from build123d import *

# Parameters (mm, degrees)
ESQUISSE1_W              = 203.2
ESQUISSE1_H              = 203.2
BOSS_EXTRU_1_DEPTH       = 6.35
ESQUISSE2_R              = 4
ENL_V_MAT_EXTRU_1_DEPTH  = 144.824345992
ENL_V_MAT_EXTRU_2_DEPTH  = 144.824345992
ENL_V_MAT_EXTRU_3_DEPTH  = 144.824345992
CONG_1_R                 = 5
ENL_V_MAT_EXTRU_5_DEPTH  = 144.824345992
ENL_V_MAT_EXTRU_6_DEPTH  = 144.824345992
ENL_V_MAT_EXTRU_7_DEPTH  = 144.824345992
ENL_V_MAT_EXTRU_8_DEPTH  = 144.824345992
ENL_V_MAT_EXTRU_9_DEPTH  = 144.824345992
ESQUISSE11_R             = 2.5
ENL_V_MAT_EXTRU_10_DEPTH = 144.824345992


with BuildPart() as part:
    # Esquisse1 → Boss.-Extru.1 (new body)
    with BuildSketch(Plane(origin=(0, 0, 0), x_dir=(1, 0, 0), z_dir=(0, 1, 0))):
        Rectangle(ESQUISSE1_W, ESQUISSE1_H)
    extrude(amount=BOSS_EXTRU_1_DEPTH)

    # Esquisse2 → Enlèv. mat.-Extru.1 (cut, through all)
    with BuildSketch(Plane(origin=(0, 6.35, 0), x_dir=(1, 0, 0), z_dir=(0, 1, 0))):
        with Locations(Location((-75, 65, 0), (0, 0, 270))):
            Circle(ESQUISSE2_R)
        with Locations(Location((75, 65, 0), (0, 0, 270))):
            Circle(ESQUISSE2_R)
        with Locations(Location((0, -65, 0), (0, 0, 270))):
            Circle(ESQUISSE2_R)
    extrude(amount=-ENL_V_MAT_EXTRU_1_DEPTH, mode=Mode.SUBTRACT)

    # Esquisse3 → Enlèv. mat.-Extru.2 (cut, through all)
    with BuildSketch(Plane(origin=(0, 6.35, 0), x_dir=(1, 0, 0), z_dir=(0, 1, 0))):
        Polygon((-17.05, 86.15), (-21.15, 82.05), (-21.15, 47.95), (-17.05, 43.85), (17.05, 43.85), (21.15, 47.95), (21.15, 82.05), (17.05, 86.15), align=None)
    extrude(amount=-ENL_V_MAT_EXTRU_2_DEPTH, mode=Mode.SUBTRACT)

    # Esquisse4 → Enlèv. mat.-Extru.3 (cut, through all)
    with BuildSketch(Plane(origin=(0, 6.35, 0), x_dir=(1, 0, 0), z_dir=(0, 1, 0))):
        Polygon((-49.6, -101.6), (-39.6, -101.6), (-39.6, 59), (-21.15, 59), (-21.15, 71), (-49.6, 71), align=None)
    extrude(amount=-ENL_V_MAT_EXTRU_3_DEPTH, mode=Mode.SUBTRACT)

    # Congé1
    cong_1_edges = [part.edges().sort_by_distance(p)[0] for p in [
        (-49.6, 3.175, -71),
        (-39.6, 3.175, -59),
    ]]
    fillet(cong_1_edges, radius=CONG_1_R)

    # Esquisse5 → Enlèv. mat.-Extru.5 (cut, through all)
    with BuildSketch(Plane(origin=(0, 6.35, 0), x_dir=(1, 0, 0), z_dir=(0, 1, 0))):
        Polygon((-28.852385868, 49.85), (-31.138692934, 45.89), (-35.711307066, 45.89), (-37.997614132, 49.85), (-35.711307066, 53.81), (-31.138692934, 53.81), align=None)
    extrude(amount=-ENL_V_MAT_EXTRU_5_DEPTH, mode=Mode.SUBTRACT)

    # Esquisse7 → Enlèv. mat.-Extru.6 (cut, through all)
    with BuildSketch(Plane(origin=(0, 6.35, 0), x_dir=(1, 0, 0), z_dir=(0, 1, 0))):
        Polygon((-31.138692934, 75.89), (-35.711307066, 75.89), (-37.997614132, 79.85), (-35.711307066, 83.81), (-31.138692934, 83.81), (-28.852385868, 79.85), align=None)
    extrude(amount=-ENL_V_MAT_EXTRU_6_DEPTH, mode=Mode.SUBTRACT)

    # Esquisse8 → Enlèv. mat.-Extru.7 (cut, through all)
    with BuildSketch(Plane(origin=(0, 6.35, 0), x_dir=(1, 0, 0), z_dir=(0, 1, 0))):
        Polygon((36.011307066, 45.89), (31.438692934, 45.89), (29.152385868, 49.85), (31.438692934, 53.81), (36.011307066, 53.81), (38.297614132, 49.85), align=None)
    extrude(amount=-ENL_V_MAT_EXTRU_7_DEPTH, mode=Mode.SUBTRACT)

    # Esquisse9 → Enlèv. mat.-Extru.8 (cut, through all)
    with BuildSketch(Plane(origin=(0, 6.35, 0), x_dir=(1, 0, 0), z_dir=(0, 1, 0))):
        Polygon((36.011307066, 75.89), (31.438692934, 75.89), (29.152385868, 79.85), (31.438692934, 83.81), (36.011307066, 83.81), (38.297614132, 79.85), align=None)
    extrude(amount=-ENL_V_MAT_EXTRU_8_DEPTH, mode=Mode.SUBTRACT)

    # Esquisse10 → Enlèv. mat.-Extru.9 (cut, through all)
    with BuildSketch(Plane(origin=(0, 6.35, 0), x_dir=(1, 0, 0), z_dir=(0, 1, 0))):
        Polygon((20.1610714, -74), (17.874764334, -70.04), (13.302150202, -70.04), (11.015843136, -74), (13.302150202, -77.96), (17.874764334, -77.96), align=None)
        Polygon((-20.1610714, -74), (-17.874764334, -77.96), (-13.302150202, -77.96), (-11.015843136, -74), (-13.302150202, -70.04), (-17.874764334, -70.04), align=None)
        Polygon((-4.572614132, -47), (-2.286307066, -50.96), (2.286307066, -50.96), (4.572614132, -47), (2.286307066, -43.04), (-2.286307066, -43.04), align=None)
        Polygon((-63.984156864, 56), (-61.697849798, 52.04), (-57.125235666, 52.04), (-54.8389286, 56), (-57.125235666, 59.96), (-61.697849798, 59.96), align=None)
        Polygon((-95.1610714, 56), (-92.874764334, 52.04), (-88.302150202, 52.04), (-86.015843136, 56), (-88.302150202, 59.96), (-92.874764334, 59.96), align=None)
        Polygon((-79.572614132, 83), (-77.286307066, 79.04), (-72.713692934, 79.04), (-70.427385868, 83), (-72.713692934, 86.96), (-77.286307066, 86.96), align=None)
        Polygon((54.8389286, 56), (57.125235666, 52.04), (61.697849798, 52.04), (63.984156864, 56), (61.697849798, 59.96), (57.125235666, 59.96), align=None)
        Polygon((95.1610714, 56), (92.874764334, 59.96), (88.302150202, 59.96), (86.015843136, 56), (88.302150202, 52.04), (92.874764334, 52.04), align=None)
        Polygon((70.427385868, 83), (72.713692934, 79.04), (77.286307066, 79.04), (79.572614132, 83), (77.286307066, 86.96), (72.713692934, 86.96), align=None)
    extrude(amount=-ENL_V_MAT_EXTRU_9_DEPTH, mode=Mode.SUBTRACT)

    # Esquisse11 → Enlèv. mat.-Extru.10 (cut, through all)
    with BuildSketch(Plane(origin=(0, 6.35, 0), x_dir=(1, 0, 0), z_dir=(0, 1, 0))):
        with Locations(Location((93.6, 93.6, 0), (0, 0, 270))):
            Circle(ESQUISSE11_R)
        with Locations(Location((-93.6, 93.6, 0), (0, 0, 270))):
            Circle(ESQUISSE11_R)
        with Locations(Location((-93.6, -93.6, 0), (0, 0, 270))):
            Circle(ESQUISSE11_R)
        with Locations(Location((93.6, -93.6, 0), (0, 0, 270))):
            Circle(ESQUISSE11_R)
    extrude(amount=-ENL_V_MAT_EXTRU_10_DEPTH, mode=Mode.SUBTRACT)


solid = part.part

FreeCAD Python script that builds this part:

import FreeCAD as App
import Part
import Sketcher

V = App.Vector
Q = App.Units.Quantity


def edges_at(feature, points):
    """Names of the edges that pass closest to the given points."""
    edges = feature.Shape.Edges
    near = lambda p: min(range(len(edges)), key=lambda i: edges[i].distToShape(Part.Vertex(*p))[0])
    return sorted({f"Edge{near(p) + 1}" for p in points})


def add_polygon(sketch, points):
    """Adds a closed chain of lines whose ends are joined by coincident constraints."""
    first, n = sketch.GeometryCount, len(points)
    for a, b in zip(points, points[1:] + points[:1]):
        sketch.addGeometry(Part.LineSegment(App.Vector(*a, 0), App.Vector(*b, 0)), False)
    for i in range(n):
        sketch.addConstraint(Sketcher.Constraint("Coincident", first + i, 2, first + (i + 1) % n, 1))

doc = App.newDocument("Part")
body = doc.addObject("PartDesign::Body", "Body")

sketch1 = body.newObject("Sketcher::SketchObject", "Sketch")
sketch1.AttachmentSupport = (doc.getObject("XZ_Plane"), [""])
sketch1.MapMode = "FlatFace"
add_polygon(sketch1, [(-102, -102), (-102, 102), (102, 102), (102, -102)])
sketch1.addConstraint(Sketcher.Constraint("Vertical", 0))
sketch1.addConstraint(Sketcher.Constraint("Horizontal", 1))
sketch1.addConstraint(Sketcher.Constraint("Vertical", 2))
sketch1.addConstraint(Sketcher.Constraint("Horizontal", 3))
sketch1.addConstraint(Sketcher.Constraint("Symmetric", 0, 2, 2, 2, -1, 1))
sketch1.addConstraint(Sketcher.Constraint("Equal", 3, 0))
sketch1.addConstraint(Sketcher.Constraint("DistanceX", 1, 1, 1, 2, Q("203.2 mm")))
pad1 = body.newObject("PartDesign::Pad", "Pad")
pad1.Profile = sketch1
pad1.Length = 6.35
pad1.Reversed = True

sketch2 = body.newObject("Sketcher::SketchObject", "Sketch001")
sketch2.AttachmentSupport = (doc.getObject("XZ_Plane"), [""])
sketch2.MapMode = "FlatFace"
sketch2.AttachmentOffset = App.Placement(V(0, 0, -6.35), App.Rotation())
sketch2.addGeometry(Part.Circle(V(-75, -65, 0), V(0, 0, 1), 4), False)
sketch2.addGeometry(Part.Circle(V(75, -65, 0), V(0, 0, 1), 4), False)
sketch2.addGeometry(Part.Circle(V(0, 65, 0), V(0, 0, 1), 4), False)
sketch2.addConstraint(Sketcher.Constraint("Equal", 0, 1))
sketch2.addConstraint(Sketcher.Constraint("Equal", 1, 2))
sketch2.addConstraint(Sketcher.Constraint("Symmetric", 0, 3, 1, 3, -2))
sketch2.addConstraint(Sketcher.Constraint("PointOnObject", 2, 3, -2))
sketch2.addConstraint(Sketcher.Constraint("Diameter", 0, Q("8 mm")))
sketch2.addConstraint(Sketcher.Constraint("DistanceX", 0, 3, -1, 1, Q("75 mm")))
sketch2.addConstraint(Sketcher.Constraint("DistanceY", 0, 3, -1, 1, Q("65 mm")))
sketch2.addConstraint(Sketcher.Constraint("DistanceY", -1, 1, 2, 3, Q("65 mm")))
pocket1 = body.newObject("PartDesign::Pocket", "Pocket")
pocket1.Profile = sketch2
pocket1.Type = "ThroughAll"
pocket1.Reversed = True

sketch3 = body.newObject("Sketcher::SketchObject", "Sketch002")
sketch3.AttachmentSupport = (doc.getObject("XZ_Plane"), [""])
sketch3.MapMode = "FlatFace"
sketch3.AttachmentOffset = App.Placement(V(0, 0, -6.35), App.Rotation())
add_polygon(sketch3, [(-17, -86), (-21, -82), (-21, -48), (-17, -44), (17, -44), (21, -48), (21, -82), (17, -86)])
sketch3.addConstraint(Sketcher.Constraint("Vertical", 1))
sketch3.addConstraint(Sketcher.Constraint("Horizontal", 3))
sketch3.addConstraint(Sketcher.Constraint("Vertical", 5))
sketch3.addConstraint(Sketcher.Constraint("Horizontal", 7))
sketch3.addConstraint(Sketcher.Constraint("Symmetric", 1, 2, 4, 2, -2))
sketch3.addConstraint(Sketcher.Constraint("Perpendicular", 0, 2))
sketch3.addConstraint(Sketcher.Constraint("Perpendicular", 2, 4))
sketch3.addConstraint(Sketcher.Constraint("Perpendicular", 4, 6))
sketch3.addConstraint(Sketcher.Constraint("Horizontal", 0, 2, 5, 2))
sketch3.addConstraint(Sketcher.Constraint("Vertical", 3, 2, 6, 2))
sketch3.addConstraint(Sketcher.Constraint("Vertical", 2, 2, 7, 2))
sketch3.addConstraint(Sketcher.Constraint("Equal", 7, 1))
sketch3.addConstraint(Sketcher.Constraint("DistanceX", 3, 1, 3, 2, Q("34.1 mm")))
sketch3.addConstraint(Sketcher.Constraint("DistanceX", 1, 2, 2, 2, Q("4.1 mm")))
sketch3.addConstraint(Sketcher.Constraint("DistanceY", 0, 2, -1, 1, Q("82.05 mm")))
pocket2 = body.newObject("PartDesign::Pocket", "Pocket001")
pocket2.Profile = sketch3
pocket2.Type = "ThroughAll"
pocket2.Reversed = True

sketch4 = body.newObject("Sketcher::SketchObject", "Sketch003")
sketch4.AttachmentSupport = (doc.getObject("XZ_Plane"), [""])
sketch4.MapMode = "FlatFace"
sketch4.AttachmentOffset = App.Placement(V(0, 0, -6.35), App.Rotation())
add_polygon(sketch4, [(-50, 102), (-40, 102), (-40, -59), (-21, -59), (-21, -71), (-50, -71)])
sketch4.addConstraint(Sketcher.Constraint("Horizontal", 0))
sketch4.addConstraint(Sketcher.Constraint("Vertical", 1))
sketch4.addConstraint(Sketcher.Constraint("Horizontal", 2))
sketch4.addConstraint(Sketcher.Constraint("Vertical", 3))
sketch4.addConstraint(Sketcher.Constraint("Horizontal", 4))
sketch4.addConstraint(Sketcher.Constraint("Vertical", 5))
sketch4.addConstraint(Sketcher.Constraint("DistanceX", 0, 1, 0, 2, Q("10 mm")))
sketch4.addConstraint(Sketcher.Constraint("DistanceY", 3, 2, 3, 1, Q("12 mm")))
sketch4.addConstraint(Sketcher.Constraint("DistanceY", 1, 2, 1, 1, Q("160.6 mm")))
sketch4.addConstraint(Sketcher.Constraint("DistanceY", 1, 2, -1, 1, Q("59 mm")))
sketch4.addConstraint(Sketcher.Constraint("DistanceX", 2, 1, 2, 2, Q("18.45 mm")))
sketch4.addConstraint(Sketcher.Constraint("DistanceX", 0, 2, -1, 1, Q("39.6 mm")))
pocket3 = body.newObject("PartDesign::Pocket", "Pocket002")
pocket3.Profile = sketch4
pocket3.Type = "ThroughAll"
pocket3.Reversed = True
doc.recompute()

fillet = body.newObject("PartDesign::Fillet", "Fillet")
fillet.Base = (pocket3, edges_at(pocket3, [(-49.6, 3.175, -71), (-39.6, 3.175, -59)]))
fillet.Radius = 5

sketch5 = body.newObject("Sketcher::SketchObject", "Sketch004")
sketch5.AttachmentSupport = (doc.getObject("XZ_Plane"), [""])
sketch5.MapMode = "FlatFace"
sketch5.AttachmentOffset = App.Placement(V(0, 0, -6.35), App.Rotation())
add_polygon(sketch5, [(-31.1, -45.9), (-28.9, -49.9), (-31.1, -53.8), (-35.7, -53.8), (-38, -49.9), (-35.7, -45.9)])
sketch5.addConstraint(Sketcher.Constraint("Horizontal", 2))
sketch5.addConstraint(Sketcher.Constraint("Horizontal", 5))
sketch5.addConstraint(Sketcher.Constraint("Parallel", 0, 3))
sketch5.addConstraint(Sketcher.Constraint("Parallel", 1, 4))
sketch5.addConstraint(Sketcher.Constraint("Horizontal", 0, 2, 3, 2))
sketch5.addConstraint(Sketcher.Constraint("Vertical", 2, 2, 4, 2))
sketch5.addConstraint(Sketcher.Constraint("Vertical", 1, 2, 5, 2))
sketch5.addConstraint(Sketcher.Constraint("Angle", 0, Q("-60 deg")))
sketch5.addConstraint(Sketcher.Constraint("DistanceY", 0, 2, -1, 1, Q("49.85 mm")))
sketch5.addConstraint(Sketcher.Constraint("DistanceY", 1, 2, -1, 1, Q("53.81 mm")))
sketch5.addConstraint(Sketcher.Constraint("DistanceX", 2, 2, 2, 1, Q("4.572614 mm")))
sketch5.addConstraint(Sketcher.Constraint("DistanceX", 0, 2, -1, 1, Q("28.852386 mm")))
pocket4 = body.newObject("PartDesign::Pocket", "Pocket003")
pocket4.Profile = sketch5
pocket4.Type = "ThroughAll"
pocket4.Reversed = True

sketch6 = body.newObject("Sketcher::SketchObject", "Sketch005")
sketch6.AttachmentSupport = (doc.getObject("XZ_Plane"), [""])
sketch6.MapMode = "FlatFace"
sketch6.AttachmentOffset = App.Placement(V(0, 0, -6.35), App.Rotation())
add_polygon(sketch6, [(-35.7, -75.9), (-31.1, -75.9), (-28.9, -79.8), (-31.1, -83.8), (-35.7, -83.8), (-38, -79.8)])
sketch6.addConstraint(Sketcher.Constraint("Horizontal", 0))
sketch6.addConstraint(Sketcher.Constraint("Horizontal", 3))
sketch6.addConstraint(Sketcher.Constraint("Parallel", 1, 4))
sketch6.addConstraint(Sketcher.Constraint("Parallel", 2, 5))
sketch6.addConstraint(Sketcher.Constraint("Horizontal", 1, 2, 4, 2))
sketch6.addConstraint(Sketcher.Constraint("Vertical", 0, 2, 2, 2))
sketch6.addConstraint(Sketcher.Constraint("Vertical", 3, 2, 5, 2))
sketch6.addConstraint(Sketcher.Constraint("Angle", 1, Q("-60 deg")))
sketch6.addConstraint(Sketcher.Constraint("DistanceY", 0, 2, -1, 1, Q("75.89 mm")))
sketch6.addConstraint(Sketcher.Constraint("DistanceY", 1, 2, -1, 1, Q("79.85 mm")))
sketch6.addConstraint(Sketcher.Constraint("DistanceX", 0, 1, 0, 2, Q("4.572614 mm")))
sketch6.addConstraint(Sketcher.Constraint("DistanceX", 0, 2, -1, 1, Q("31.138693 mm")))
pocket5 = body.newObject("PartDesign::Pocket", "Pocket004")
pocket5.Profile = sketch6
pocket5.Type = "ThroughAll"
pocket5.Reversed = True

sketch7 = body.newObject("Sketcher::SketchObject", "Sketch006")
sketch7.AttachmentSupport = (doc.getObject("XZ_Plane"), [""])
sketch7.MapMode = "FlatFace"
sketch7.AttachmentOffset = App.Placement(V(0, 0, -6.35), App.Rotation())
add_polygon(sketch7, [(31.4, -45.9), (36, -45.9), (38.3, -49.9), (36, -53.8), (31.4, -53.8), (29.2, -49.9)])
sketch7.addConstraint(Sketcher.Constraint("Horizontal", 0))
sketch7.addConstraint(Sketcher.Constraint("Horizontal", 3))
sketch7.addConstraint(Sketcher.Constraint("Parallel", 1, 4))
sketch7.addConstraint(Sketcher.Constraint("Parallel", 2, 5))
sketch7.addConstraint(Sketcher.Constraint("Horizontal", 1, 2, 4, 2))
sketch7.addConstraint(Sketcher.Constraint("Vertical", 0, 2, 2, 2))
sketch7.addConstraint(Sketcher.Constraint("Vertical", 3, 2, 5, 2))
sketch7.addConstraint(Sketcher.Constraint("Angle", 1, Q("-60 deg")))
sketch7.addConstraint(Sketcher.Constraint("DistanceY", 0, 2, -1, 1, Q("45.89 mm")))
sketch7.addConstraint(Sketcher.Constraint("DistanceY", 1, 2, -1, 1, Q("49.85 mm")))
sketch7.addConstraint(Sketcher.Constraint("DistanceX", 0, 1, 0, 2, Q("4.572614 mm")))
sketch7.addConstraint(Sketcher.Constraint("DistanceX", -1, 1, 0, 2, Q("36.011307 mm")))
pocket6 = body.newObject("PartDesign::Pocket", "Pocket005")
pocket6.Profile = sketch7
pocket6.Type = "ThroughAll"
pocket6.Reversed = True

sketch8 = body.newObject("Sketcher::SketchObject", "Sketch007")
sketch8.AttachmentSupport = (doc.getObject("XZ_Plane"), [""])
sketch8.MapMode = "FlatFace"
sketch8.AttachmentOffset = App.Placement(V(0, 0, -6.35), App.Rotation())
add_polygon(sketch8, [(31.4, -75.9), (36, -75.9), (38.3, -79.8), (36, -83.8), (31.4, -83.8), (29.2, -79.8)])
sketch8.addConstraint(Sketcher.Constraint("Horizontal", 0))
sketch8.addConstraint(Sketcher.Constraint("Horizontal", 3))
sketch8.addConstraint(Sketcher.Constraint("Parallel", 1, 4))
sketch8.addConstraint(Sketcher.Constraint("Parallel", 2, 5))
sketch8.addConstraint(Sketcher.Constraint("Horizontal", 1, 2, 4, 2))
sketch8.addConstraint(Sketcher.Constraint("Vertical", 0, 2, 2, 2))
sketch8.addConstraint(Sketcher.Constraint("Vertical", 3, 2, 5, 2))
sketch8.addConstraint(Sketcher.Constraint("Angle", 1, Q("-60 deg")))
sketch8.addConstraint(Sketcher.Constraint("DistanceY", 0, 2, -1, 1, Q("75.89 mm")))
sketch8.addConstraint(Sketcher.Constraint("DistanceY", 1, 2, -1, 1, Q("79.85 mm")))
sketch8.addConstraint(Sketcher.Constraint("DistanceX", 0, 1, 0, 2, Q("4.572614 mm")))
sketch8.addConstraint(Sketcher.Constraint("DistanceX", -1, 1, 0, 2, Q("36.011307 mm")))
pocket7 = body.newObject("PartDesign::Pocket", "Pocket006")
pocket7.Profile = sketch8
pocket7.Type = "ThroughAll"
pocket7.Reversed = True

sketch9 = body.newObject("Sketcher::SketchObject", "Sketch008")
sketch9.AttachmentSupport = (doc.getObject("XZ_Plane"), [""])
sketch9.MapMode = "FlatFace"
sketch9.AttachmentOffset = App.Placement(V(0, 0, -6.35), App.Rotation())
add_polygon(sketch9, [(20.2, 74), (17.9, 70), (13.3, 70), (11, 74), (13.3, 78), (17.9, 78)])
add_polygon(sketch9, [(-20.2, 74), (-17.9, 78), (-13.3, 78), (-11, 74), (-13.3, 70), (-17.9, 70)])
add_polygon(sketch9, [(-4.6, 47), (-2.3, 51), (2.3, 51), (4.6, 47), (2.3, 43), (-2.3, 43)])
add_polygon(sketch9, [(-64, -56), (-61.7, -52), (-57.1, -52), (-54.8, -56), (-57.1, -60), (-61.7, -60)])
add_polygon(sketch9, [(-95.2, -56), (-92.9, -52), (-88.3, -52), (-86, -56), (-88.3, -60), (-92.9, -60)])
add_polygon(sketch9, [(-79.6, -83), (-77.3, -79), (-72.7, -79), (-70.4, -83), (-72.7, -87), (-77.3, -87)])
add_polygon(sketch9, [(54.8, -56), (57.1, -52), (61.7, -52), (64, -56), (61.7, -60), (57.1, -60)])
add_polygon(sketch9, [(95.2, -56), (92.9, -60), (88.3, -60), (86, -56), (88.3, -52), (92.9, -52)])
add_polygon(sketch9, [(70.4, -83), (72.7, -79), (77.3, -79), (79.6, -83), (77.3, -87), (72.7, -87)])
sketch9.addConstraint(Sketcher.Constraint("Horizontal", 1))
sketch9.addConstraint(Sketcher.Constraint("Horizontal", 4))
sketch9.addConstraint(Sketcher.Constraint("Horizontal", 7))
sketch9.addConstraint(Sketcher.Constraint("Horizontal", 10))
sketch9.addConstraint(Sketcher.Constraint("Horizontal", 13))
sketch9.addConstraint(Sketcher.Constraint("Horizontal", 16))
sketch9.addConstraint(Sketcher.Constraint("Horizontal", 19))
sketch9.addConstraint(Sketcher.Constraint("Horizontal", 22))
sketch9.addConstraint(Sketcher.Constraint("Horizontal", 25))
sketch9.addConstraint(Sketcher.Constraint("Horizontal", 28))
sketch9.addConstraint(Sketcher.Constraint("Horizontal", 31))
sketch9.addConstraint(Sketcher.Constraint("Horizontal", 34))
sketch9.addConstraint(Sketcher.Constraint("Horizontal", 37))
sketch9.addConstraint(Sketcher.Constraint("Horizontal", 40))
sketch9.addConstraint(Sketcher.Constraint("Horizontal", 43))
sketch9.addConstraint(Sketcher.Constraint("Horizontal", 46))
sketch9.addConstraint(Sketcher.Constraint("Horizontal", 49))
sketch9.addConstraint(Sketcher.Constraint("Horizontal", 52))
sketch9.addConstraint(Sketcher.Constraint("Symmetric", 4, 2, 6, 2, -2))
sketch9.addConstraint(Sketcher.Constraint("Symmetric", 2, 2, 8, 2, -2))
sketch9.addConstraint(Sketcher.Constraint("Symmetric", 1, 2, 9, 2, -2))
sketch9.addConstraint(Sketcher.Constraint("Symmetric", 5, 2, 11, 2, -2))
sketch9.addConstraint(Sketcher.Constraint("Symmetric", 14, 2, 17, 2, -2))
sketch9.addConstraint(Sketcher.Constraint("Symmetric", 19, 2, 36, 2, -2))
sketch9.addConstraint(Sketcher.Constraint("Symmetric", 23, 2, 38, 2, -2))
sketch9.addConstraint(Sketcher.Constraint("Symmetric", 22, 2, 39, 2, -2))
sketch9.addConstraint(Sketcher.Constraint("Symmetric", 20, 2, 41, 2, -2))
sketch9.addConstraint(Sketcher.Constraint("Symmetric", 28, 2, 42, 2, -2))
sketch9.addConstraint(Sketcher.Constraint("Symmetric", 26, 2, 44, 2, -2))
sketch9.addConstraint(Sketcher.Constraint("Symmetric", 25, 2, 45, 2, -2))
sketch9.addConstraint(Sketcher.Constraint("Symmetric", 29, 2, 47, 2, -2))
sketch9.addConstraint(Sketcher.Constraint("Symmetric", 31, 2, 48, 2, -2))
sketch9.addConstraint(Sketcher.Constraint("Symmetric", 35, 2, 50, 2, -2))
sketch9.addConstraint(Sketcher.Constraint("Symmetric", 34, 2, 51, 2, -2))
sketch9.addConstraint(Sketcher.Constraint("Symmetric", 32, 2, 53, 2, -2))
sketch9.addConstraint(Sketcher.Constraint("Parallel", 0, 3))
sketch9.addConstraint(Sketcher.Constraint("Parallel", 2, 5))
sketch9.addConstraint(Sketcher.Constraint("Parallel", 3, 6))
sketch9.addConstraint(Sketcher.Constraint("Parallel", 5, 8))
sketch9.addConstraint(Sketcher.Constraint("Parallel", 8, 11))
sketch9.addConstraint(Sketcher.Constraint("Parallel", 9, 12))
sketch9.addConstraint(Sketcher.Constraint("Parallel", 11, 14))
sketch9.addConstraint(Sketcher.Constraint("Parallel", 12, 15))
sketch9.addConstraint(Sketcher.Constraint("Parallel", 14, 17))
sketch9.addConstraint(Sketcher.Constraint("Parallel", 15, 18))
sketch9.addConstraint(Sketcher.Constraint("Parallel", 17, 20))
sketch9.addConstraint(Sketcher.Constraint("Parallel", 18, 21))
sketch9.addConstraint(Sketcher.Constraint("Parallel", 20, 23))
sketch9.addConstraint(Sketcher.Constraint("Parallel", 21, 24))
sketch9.addConstraint(Sketcher.Constraint("Parallel", 23, 26))
sketch9.addConstraint(Sketcher.Constraint("Parallel", 24, 27))
sketch9.addConstraint(Sketcher.Constraint("Parallel", 26, 29))
sketch9.addConstraint(Sketcher.Constraint("Parallel", 27, 30))
sketch9.addConstraint(Sketcher.Constraint("Parallel", 29, 32))
sketch9.addConstraint(Sketcher.Constraint("Parallel", 30, 33))
sketch9.addConstraint(Sketcher.Constraint("Parallel", 32, 35))
sketch9.addConstraint(Sketcher.Constraint("Parallel", 35, 38))
sketch9.addConstraint(Sketcher.Constraint("Parallel", 38, 41))
sketch9.addConstraint(Sketcher.Constraint("Parallel", 41, 44))
sketch9.addConstraint(Sketcher.Constraint("Parallel", 44, 47))
sketch9.addConstraint(Sketcher.Constraint("Parallel", 47, 50))
sketch9.addConstraint(Sketcher.Constraint("Parallel", 50, 53))
sketch9.addConstraint(Sketcher.Constraint("Horizontal", 2, 2, 5, 2))
sketch9.addConstraint(Sketcher.Constraint("Horizontal", 20, 2, 23, 2))
sketch9.addConstraint(Sketcher.Constraint("Horizontal", 19, 2, 24, 2))
sketch9.addConstraint(Sketcher.Constraint("Horizontal", 23, 2, 26, 2))
sketch9.addConstraint(Sketcher.Constraint("Horizontal", 22, 2, 27, 2))
sketch9.addConstraint(Sketcher.Constraint("Horizontal", 26, 2, 29, 2))
sketch9.addConstraint(Sketcher.Constraint("Horizontal", 32, 2, 35, 2))
sketch9.addConstraint(Sketcher.Constraint("Vertical", 1, 2, 3, 2))
sketch9.addConstraint(Sketcher.Constraint("Vertical", 13, 2, 15, 2))
sketch9.addConstraint(Sketcher.Constraint("Vertical", 19, 2, 21, 2))
sketch9.addConstraint(Sketcher.Constraint("Vertical", 31, 2, 33, 2))
sketch9.addConstraint(Sketcher.Constraint("Equal", 10, 13))
sketch9.addConstraint(Sketcher.Constraint("Equal", 16, 19))
sketch9.addConstraint(Sketcher.Constraint("Equal", 22, 25))
sketch9.addConstraint(Sketcher.Constraint("Equal", 28, 31))
sketch9.addConstraint(Sketcher.Constraint("Equal", 11, 12))
sketch9.addConstraint(Sketcher.Constraint("Equal", 17, 18))
sketch9.addConstraint(Sketcher.Constraint("Equal", 29, 30))
sketch9.addConstraint(Sketcher.Constraint("Angle", 0, Q("-120 deg")))
sketch9.addConstraint(Sketcher.Constraint("DistanceY", -1, 1, 2, 2, Q("74 mm")))
sketch9.addConstraint(Sketcher.Constraint("DistanceY", -1, 1, 14, 2, Q("47 mm")))
sketch9.addConstraint(Sketcher.Constraint("DistanceY", 20, 2, -1, 1, Q("56 mm")))
sketch9.addConstraint(Sketcher.Constraint("DistanceY", 32, 2, -1, 1, Q("83 mm")))
sketch9.addConstraint(Sketcher.Constraint("DistanceY", -1, 1, 0, 2, Q("70.04 mm")))
sketch9.addConstraint(Sketcher.Constraint("DistanceX", 7, 2, 3, 2, Q("26.6043 mm")))
sketch9.addConstraint(Sketcher.Constraint("DistanceX", 25, 2, 18, 2, Q("26.6043 mm")))
sketch9.addConstraint(Sketcher.Constraint("DistanceX", 1, 2, 1, 1, Q("4.572614 mm")))
sketch9.addConstraint(Sketcher.Constraint("DistanceX", 18, 2, -1, 1, Q("61.69785 mm")))
sketch9.addConstraint(Sketcher.Constraint("DistanceX", 30, 2, 23, 2, Q("13.30215 mm")))
pocket8 = body.newObject("PartDesign::Pocket", "Pocket007")
pocket8.Profile = sketch9
pocket8.Type = "ThroughAll"
pocket8.Reversed = True

sketch10 = body.newObject("Sketcher::SketchObject", "Sketch009")
sketch10.AttachmentSupport = (doc.getObject("XZ_Plane"), [""])
sketch10.MapMode = "FlatFace"
sketch10.AttachmentOffset = App.Placement(V(0, 0, -6.35), App.Rotation())
sketch10.addGeometry(Part.Circle(V(93.6, -93.6, 0), V(0, 0, 1), 2.5), False)
sketch10.addGeometry(Part.Circle(V(-93.6, -93.6, 0), V(0, 0, 1), 2.5), False)
sketch10.addGeometry(Part.Circle(V(-93.6, 93.6, 0), V(0, 0, 1), 2.5), False)
sketch10.addGeometry(Part.Circle(V(93.6, 93.6, 0), V(0, 0, 1), 2.5), False)
sketch10.addConstraint(Sketcher.Constraint("Equal", 0, 1))
sketch10.addConstraint(Sketcher.Constraint("Equal", 1, 2))
sketch10.addConstraint(Sketcher.Constraint("Equal", 2, 3))
sketch10.addConstraint(Sketcher.Constraint("Symmetric", 0, 3, 2, 3, -1, 1))
sketch10.addConstraint(Sketcher.Constraint("Symmetric", 1, 3, 3, 3, -1, 1))
sketch10.addConstraint(Sketcher.Constraint("Symmetric", 0, 3, 1, 3, -2))
sketch10.addConstraint(Sketcher.Constraint("Diameter", 0, Q("5 mm")))
sketch10.addConstraint(Sketcher.Constraint("DistanceX", -1, 1, 0, 3, Q("93.6 mm")))
sketch10.addConstraint(Sketcher.Constraint("DistanceY", 0, 3, -1, 1, Q("93.6 mm")))
pocket9 = body.newObject("PartDesign::Pocket", "Pocket008")
pocket9.Profile = sketch10
pocket9.Type = "ThroughAll"
pocket9.Reversed = True

doc.recompute()
